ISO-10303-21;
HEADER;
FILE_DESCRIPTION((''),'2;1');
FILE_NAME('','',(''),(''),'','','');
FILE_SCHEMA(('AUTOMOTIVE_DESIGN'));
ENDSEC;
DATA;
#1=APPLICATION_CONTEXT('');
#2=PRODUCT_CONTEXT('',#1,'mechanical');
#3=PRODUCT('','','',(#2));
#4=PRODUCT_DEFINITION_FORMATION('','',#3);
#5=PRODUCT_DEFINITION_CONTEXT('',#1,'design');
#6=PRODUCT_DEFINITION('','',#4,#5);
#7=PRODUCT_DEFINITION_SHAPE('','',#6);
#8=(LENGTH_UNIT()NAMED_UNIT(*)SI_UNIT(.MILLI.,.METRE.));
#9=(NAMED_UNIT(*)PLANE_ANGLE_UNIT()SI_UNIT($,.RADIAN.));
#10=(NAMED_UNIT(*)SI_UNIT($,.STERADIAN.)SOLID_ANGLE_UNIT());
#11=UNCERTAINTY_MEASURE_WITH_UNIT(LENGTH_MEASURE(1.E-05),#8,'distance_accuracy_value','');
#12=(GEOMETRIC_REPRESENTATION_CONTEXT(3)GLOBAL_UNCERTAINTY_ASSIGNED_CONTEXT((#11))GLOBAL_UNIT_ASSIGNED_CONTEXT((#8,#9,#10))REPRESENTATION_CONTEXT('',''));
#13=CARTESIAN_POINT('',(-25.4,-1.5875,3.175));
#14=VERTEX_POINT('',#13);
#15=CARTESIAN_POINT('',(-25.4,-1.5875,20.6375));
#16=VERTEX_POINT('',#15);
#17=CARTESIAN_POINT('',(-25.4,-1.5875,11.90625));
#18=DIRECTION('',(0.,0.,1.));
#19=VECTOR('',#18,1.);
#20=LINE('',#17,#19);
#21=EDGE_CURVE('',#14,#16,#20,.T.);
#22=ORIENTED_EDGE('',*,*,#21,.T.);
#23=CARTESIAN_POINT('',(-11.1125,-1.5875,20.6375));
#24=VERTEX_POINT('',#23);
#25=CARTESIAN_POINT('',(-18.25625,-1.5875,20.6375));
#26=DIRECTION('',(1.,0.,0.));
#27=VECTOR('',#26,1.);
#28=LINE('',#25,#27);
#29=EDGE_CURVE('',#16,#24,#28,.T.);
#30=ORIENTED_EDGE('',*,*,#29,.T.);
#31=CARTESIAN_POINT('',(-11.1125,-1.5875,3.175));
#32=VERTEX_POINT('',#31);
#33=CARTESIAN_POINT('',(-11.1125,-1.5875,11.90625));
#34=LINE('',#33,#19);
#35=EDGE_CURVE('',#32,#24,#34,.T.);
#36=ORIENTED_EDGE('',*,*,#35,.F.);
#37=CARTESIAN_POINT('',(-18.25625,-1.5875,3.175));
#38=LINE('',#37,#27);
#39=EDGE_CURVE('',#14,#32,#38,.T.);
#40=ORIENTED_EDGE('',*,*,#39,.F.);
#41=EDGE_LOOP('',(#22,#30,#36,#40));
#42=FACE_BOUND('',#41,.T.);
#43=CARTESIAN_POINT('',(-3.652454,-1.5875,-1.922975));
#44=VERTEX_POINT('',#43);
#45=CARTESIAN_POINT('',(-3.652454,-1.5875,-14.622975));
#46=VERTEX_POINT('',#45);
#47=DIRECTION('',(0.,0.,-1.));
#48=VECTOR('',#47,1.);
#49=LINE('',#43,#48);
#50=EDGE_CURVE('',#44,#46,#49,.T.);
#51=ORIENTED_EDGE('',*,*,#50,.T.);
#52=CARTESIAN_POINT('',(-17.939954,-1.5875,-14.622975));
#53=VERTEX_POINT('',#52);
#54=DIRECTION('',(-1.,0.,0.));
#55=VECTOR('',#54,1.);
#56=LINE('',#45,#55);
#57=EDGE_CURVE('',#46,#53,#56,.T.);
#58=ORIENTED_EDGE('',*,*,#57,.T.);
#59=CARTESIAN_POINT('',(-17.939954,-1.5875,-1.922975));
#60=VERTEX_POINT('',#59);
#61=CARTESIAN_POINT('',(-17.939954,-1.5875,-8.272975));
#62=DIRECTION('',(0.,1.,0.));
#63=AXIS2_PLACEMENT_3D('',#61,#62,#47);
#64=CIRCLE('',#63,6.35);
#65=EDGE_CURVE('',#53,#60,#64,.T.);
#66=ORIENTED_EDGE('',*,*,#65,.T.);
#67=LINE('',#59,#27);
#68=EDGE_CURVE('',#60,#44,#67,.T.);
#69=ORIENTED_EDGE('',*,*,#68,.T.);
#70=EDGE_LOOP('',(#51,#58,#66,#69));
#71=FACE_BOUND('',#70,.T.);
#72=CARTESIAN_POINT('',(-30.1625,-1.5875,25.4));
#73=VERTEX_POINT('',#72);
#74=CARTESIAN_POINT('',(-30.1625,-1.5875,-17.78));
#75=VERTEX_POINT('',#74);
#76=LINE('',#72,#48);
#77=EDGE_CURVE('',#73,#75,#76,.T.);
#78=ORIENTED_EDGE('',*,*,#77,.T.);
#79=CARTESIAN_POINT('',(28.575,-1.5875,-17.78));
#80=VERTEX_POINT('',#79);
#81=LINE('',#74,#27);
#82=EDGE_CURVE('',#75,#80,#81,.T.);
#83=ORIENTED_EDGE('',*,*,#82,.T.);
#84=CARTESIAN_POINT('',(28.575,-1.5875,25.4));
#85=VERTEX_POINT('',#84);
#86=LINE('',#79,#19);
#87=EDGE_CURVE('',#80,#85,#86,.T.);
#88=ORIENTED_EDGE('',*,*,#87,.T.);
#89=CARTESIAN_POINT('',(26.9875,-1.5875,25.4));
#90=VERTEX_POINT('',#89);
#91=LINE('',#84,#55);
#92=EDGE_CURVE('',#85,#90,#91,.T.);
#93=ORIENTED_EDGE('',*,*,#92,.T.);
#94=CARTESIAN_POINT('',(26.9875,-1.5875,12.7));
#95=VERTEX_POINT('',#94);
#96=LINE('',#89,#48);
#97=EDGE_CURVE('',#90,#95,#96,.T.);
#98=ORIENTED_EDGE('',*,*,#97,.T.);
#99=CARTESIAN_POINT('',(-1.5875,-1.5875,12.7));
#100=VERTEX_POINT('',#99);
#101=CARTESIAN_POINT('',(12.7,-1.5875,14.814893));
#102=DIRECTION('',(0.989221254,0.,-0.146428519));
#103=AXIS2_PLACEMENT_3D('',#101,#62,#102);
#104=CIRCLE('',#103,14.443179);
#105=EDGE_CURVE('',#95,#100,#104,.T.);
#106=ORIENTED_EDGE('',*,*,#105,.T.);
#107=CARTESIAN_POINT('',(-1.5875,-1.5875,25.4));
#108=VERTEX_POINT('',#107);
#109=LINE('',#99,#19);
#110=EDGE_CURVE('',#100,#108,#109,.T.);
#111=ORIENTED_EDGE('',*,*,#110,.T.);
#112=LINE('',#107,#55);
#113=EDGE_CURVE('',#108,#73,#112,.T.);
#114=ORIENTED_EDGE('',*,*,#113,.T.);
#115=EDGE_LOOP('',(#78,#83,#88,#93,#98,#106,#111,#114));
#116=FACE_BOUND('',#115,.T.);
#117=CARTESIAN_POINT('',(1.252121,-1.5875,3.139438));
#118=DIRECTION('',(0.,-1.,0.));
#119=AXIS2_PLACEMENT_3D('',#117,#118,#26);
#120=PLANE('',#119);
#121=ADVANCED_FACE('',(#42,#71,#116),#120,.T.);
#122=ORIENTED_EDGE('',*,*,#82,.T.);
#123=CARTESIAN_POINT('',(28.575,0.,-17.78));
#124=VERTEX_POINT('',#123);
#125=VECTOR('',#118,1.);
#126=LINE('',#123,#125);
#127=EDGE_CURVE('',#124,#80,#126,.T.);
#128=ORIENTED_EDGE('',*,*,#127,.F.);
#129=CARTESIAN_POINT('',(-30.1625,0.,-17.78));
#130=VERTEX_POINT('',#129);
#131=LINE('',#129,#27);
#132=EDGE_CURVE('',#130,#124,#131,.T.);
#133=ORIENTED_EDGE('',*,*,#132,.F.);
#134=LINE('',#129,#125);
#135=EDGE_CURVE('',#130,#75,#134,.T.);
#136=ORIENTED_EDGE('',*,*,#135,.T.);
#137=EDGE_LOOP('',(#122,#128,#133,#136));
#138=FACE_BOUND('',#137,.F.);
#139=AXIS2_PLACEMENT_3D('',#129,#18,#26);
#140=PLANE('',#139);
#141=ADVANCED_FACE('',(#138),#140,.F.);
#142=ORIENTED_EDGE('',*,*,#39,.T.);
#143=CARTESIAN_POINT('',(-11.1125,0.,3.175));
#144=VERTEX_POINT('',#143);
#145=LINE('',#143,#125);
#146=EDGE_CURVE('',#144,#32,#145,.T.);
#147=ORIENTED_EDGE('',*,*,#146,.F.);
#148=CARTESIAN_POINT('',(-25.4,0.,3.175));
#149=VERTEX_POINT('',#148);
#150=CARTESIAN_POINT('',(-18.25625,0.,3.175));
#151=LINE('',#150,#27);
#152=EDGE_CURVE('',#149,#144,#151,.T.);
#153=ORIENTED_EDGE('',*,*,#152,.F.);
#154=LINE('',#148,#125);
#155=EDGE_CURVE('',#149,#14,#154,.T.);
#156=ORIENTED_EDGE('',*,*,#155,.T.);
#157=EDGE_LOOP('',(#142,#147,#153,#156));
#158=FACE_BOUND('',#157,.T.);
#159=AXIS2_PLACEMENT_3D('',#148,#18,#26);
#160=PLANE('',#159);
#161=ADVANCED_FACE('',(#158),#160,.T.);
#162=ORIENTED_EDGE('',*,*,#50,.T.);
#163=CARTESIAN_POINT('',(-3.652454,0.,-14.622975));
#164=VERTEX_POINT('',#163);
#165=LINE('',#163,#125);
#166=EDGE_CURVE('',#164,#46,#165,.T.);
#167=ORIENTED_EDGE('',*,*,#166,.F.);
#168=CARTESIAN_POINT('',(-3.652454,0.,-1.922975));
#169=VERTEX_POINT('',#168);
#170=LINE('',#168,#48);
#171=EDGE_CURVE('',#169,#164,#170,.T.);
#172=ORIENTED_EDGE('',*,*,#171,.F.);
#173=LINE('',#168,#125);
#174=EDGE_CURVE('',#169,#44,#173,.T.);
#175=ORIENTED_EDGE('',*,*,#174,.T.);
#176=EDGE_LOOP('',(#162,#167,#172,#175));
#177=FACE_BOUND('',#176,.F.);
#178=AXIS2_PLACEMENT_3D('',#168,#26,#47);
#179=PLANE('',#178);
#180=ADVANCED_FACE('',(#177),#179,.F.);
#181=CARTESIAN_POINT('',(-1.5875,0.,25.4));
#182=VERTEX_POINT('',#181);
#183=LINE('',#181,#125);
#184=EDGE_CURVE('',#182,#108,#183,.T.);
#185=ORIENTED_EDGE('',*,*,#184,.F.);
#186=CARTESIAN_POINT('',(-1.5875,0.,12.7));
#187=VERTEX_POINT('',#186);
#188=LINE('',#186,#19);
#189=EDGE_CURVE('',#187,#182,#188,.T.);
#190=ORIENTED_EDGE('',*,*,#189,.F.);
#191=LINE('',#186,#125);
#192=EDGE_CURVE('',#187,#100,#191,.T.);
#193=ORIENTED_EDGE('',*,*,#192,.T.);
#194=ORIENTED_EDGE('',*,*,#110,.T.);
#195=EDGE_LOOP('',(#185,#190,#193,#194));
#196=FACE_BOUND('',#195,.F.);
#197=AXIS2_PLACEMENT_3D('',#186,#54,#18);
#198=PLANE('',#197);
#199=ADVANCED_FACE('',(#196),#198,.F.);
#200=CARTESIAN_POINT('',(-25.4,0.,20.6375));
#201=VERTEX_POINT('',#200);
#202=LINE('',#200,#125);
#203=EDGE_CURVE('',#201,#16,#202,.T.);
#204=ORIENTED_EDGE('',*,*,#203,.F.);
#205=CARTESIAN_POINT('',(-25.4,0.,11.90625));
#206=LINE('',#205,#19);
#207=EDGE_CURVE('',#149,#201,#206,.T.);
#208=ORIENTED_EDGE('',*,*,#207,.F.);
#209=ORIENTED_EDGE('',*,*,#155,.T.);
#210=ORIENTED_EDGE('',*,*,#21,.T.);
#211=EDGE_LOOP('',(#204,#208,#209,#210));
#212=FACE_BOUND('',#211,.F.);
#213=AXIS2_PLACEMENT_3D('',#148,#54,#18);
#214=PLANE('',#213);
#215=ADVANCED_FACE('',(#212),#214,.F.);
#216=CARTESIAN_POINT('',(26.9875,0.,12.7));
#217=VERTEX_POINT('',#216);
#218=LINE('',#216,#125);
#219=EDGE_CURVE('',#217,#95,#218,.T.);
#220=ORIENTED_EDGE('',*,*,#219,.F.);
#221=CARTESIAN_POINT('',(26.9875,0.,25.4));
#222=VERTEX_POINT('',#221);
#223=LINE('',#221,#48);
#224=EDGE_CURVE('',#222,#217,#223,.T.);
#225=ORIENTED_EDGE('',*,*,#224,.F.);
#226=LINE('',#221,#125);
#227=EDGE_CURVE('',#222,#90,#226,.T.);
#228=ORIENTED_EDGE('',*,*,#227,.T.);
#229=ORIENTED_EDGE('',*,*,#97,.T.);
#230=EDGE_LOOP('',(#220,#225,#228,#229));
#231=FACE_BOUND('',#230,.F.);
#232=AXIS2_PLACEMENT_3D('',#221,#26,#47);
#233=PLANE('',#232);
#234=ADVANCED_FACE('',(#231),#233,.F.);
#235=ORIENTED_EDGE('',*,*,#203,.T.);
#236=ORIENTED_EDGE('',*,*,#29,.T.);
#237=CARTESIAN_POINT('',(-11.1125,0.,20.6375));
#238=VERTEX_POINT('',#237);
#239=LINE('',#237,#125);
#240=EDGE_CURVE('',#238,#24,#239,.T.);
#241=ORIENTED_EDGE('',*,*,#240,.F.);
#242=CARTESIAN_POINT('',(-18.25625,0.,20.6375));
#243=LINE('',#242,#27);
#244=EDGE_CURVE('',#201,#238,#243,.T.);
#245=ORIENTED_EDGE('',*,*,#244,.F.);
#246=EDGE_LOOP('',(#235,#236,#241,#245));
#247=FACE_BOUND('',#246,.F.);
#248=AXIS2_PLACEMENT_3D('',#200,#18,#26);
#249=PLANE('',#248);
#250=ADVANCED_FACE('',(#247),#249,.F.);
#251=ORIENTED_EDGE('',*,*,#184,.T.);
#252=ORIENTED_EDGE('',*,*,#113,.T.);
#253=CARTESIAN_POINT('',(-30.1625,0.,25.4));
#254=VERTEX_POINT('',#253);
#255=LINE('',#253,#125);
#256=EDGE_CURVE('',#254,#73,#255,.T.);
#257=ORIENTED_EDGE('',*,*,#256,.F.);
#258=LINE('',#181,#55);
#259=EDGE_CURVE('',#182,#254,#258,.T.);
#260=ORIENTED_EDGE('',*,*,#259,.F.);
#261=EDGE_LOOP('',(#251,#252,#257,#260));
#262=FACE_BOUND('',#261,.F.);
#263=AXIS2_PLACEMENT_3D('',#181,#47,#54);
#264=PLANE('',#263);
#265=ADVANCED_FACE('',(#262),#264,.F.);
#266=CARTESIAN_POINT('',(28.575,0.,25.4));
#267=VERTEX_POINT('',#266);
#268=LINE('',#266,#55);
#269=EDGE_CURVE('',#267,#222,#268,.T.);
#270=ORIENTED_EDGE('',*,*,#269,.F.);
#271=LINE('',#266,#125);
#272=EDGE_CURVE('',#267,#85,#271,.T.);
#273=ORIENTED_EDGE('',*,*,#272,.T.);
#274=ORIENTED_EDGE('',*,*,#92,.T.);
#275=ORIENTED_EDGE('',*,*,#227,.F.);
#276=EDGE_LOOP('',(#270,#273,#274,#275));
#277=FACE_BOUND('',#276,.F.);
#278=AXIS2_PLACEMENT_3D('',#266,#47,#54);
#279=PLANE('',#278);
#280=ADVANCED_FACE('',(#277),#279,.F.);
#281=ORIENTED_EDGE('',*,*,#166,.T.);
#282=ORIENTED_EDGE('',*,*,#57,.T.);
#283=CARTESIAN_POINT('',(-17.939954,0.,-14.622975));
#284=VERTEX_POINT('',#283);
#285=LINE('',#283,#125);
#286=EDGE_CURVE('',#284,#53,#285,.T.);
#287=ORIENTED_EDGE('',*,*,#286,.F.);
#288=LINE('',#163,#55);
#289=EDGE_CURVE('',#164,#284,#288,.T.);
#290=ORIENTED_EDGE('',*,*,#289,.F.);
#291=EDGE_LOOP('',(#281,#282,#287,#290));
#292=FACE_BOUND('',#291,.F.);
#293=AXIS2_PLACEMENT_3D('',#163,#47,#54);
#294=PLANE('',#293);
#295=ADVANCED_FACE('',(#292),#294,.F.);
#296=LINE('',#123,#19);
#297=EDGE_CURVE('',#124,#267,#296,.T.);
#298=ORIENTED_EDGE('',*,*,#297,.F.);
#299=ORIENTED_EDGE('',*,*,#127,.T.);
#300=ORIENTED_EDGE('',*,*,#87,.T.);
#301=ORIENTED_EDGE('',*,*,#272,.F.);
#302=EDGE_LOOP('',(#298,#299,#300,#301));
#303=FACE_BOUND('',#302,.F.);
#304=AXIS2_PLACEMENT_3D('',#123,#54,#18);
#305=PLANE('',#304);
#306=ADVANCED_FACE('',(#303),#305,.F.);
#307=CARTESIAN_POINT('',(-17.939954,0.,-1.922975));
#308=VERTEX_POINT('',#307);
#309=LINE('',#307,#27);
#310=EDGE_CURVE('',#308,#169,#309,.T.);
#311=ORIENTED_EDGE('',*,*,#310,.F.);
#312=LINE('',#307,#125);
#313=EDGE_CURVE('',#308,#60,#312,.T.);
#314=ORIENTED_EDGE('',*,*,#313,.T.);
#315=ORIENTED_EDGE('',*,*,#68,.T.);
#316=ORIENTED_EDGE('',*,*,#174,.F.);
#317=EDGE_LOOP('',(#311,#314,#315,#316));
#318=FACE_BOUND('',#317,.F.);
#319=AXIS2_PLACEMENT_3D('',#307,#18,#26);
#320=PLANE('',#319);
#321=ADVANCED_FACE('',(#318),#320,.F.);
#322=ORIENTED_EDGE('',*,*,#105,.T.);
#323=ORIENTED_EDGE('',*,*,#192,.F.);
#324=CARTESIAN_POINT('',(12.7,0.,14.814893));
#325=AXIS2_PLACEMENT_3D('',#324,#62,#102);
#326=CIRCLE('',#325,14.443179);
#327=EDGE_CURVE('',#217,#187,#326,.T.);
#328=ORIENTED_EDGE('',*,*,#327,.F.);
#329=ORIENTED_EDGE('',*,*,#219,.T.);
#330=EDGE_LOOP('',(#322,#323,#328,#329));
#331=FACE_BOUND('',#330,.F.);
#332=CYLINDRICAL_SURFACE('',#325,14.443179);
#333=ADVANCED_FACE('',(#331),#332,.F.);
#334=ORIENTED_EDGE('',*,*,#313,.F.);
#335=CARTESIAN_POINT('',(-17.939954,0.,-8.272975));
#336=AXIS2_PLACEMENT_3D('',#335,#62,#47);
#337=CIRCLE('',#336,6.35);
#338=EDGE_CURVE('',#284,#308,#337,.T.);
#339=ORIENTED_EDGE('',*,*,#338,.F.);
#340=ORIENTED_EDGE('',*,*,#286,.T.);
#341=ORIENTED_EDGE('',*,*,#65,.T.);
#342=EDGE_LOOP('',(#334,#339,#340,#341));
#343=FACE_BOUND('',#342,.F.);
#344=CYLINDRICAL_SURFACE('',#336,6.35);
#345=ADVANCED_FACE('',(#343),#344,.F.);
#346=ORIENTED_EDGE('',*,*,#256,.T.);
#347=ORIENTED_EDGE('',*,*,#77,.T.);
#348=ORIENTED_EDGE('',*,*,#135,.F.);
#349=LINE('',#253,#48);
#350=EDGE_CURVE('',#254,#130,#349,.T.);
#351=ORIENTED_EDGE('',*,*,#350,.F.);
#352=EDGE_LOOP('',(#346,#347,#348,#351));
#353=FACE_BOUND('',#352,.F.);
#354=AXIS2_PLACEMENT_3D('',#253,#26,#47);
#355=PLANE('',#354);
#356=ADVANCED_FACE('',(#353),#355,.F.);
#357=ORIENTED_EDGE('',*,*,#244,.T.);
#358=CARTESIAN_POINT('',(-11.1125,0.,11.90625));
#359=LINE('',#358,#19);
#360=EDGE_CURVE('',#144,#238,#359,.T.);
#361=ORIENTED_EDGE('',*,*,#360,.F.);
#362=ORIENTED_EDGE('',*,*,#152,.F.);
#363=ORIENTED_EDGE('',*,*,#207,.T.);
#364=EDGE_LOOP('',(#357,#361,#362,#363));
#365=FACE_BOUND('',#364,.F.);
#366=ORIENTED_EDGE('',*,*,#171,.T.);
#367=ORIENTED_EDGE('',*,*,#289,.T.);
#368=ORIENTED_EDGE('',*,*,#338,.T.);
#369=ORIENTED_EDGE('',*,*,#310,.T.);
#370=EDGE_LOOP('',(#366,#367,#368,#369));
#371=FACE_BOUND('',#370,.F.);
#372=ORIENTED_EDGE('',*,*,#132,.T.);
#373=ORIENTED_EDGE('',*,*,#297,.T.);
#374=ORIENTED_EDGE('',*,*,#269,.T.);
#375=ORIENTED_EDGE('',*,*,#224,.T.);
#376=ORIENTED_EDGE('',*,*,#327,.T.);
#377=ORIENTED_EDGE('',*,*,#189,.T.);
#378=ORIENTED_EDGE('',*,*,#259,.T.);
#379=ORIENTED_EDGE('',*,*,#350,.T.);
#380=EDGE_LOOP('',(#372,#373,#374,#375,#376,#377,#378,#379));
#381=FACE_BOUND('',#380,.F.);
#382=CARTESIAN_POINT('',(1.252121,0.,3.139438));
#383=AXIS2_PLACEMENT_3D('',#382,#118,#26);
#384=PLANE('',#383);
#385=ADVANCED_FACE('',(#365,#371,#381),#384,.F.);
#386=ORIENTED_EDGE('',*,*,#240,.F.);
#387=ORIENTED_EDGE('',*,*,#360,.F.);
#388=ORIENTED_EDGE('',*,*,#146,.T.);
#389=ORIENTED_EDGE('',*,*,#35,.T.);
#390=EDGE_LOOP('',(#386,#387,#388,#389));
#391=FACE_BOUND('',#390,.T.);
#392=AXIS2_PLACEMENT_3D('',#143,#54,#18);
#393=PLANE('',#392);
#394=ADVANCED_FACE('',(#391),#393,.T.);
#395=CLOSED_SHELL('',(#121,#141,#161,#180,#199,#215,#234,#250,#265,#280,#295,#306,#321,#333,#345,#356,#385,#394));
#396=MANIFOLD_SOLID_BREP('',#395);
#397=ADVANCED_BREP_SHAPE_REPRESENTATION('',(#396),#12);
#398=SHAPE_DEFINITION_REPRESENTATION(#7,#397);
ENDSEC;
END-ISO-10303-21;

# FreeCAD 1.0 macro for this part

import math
import FreeCAD as App
import Part
import Sketcher

V = App.Vector
Q = App.Units.Quantity


def add_polygon(sketch, points):
    """Adds a closed chain of lines whose ends are joined by coincident constraints."""
    first, n = sketch.GeometryCount, len(points)
    for a, b in zip(points, points[1:] + points[:1]):
        sketch.addGeometry(Part.LineSegment(App.Vector(*a, 0), App.Vector(*b, 0)), False)
    for i in range(n):
        sketch.addConstraint(Sketcher.Constraint("Coincident", first + i, 2, first + (i + 1) % n, 1))

doc = App.newDocument("Part")
body = doc.addObject("PartDesign::Body", "Body")

# Sketch on XZ plane
sketch1 = body.newObject("Sketcher::SketchObject", "Sketch")
sketch1.AttachmentSupport = (doc.getObject("XZ_Plane"), [""])
sketch1.MapMode = "FlatFace"
sketch1.addGeometry(Part.LineSegment(V(-30.2, 25.4, 0), V(-30.2, -17.8, 0)), False)  # 0
sketch1.addGeometry(Part.LineSegment(V(-30.2, -17.8, 0), V(28.6, -17.8, 0)), False)  # 1
sketch1.addGeometry(Part.LineSegment(V(28.6, -17.8, 0), V(28.6, 25.4, 0)), False)  # 2
sketch1.addGeometry(Part.LineSegment(V(28.6, 25.4, 0), V(27, 25.4, 0)), False)  # 3
sketch1.addGeometry(Part.LineSegment(V(27, 25.4, 0), V(27, 12.7, 0)), False)  # 4
sketch1.addGeometry(Part.ArcOfCircle(Part.Circle(V(12.7, 14.8, 0), V(0, 0, 1), 14.4), math.radians(-172), math.radians(-8)), False)  # 5
sketch1.addGeometry(Part.LineSegment(V(-1.6, 12.7, 0), V(-1.6, 25.4, 0)), False)  # 6
sketch1.addGeometry(Part.LineSegment(V(-1.6, 25.4, 0), V(-30.2, 25.4, 0)), False)  # 7
sketch1.addGeometry(Part.LineSegment(V(-3.7, -14.6, 0), V(-17.9, -14.6, 0)), False)  # 8
sketch1.addGeometry(Part.ArcOfCircle(Part.Circle(V(-17.9, -8.3, 0), V(0, 0, 1), 6.3), math.radians(90), math.radians(270)), False)  # 9
sketch1.addGeometry(Part.LineSegment(V(-17.9, -1.9, 0), V(-3.7, -1.9, 0)), False)  # 10
sketch1.addGeometry(Part.LineSegment(V(-3.7, -1.9, 0), V(-3.7, -14.6, 0)), False)  # 11
add_polygon(sketch1, [(-11.1, 3.2), (-25.4, 3.2), (-25.4, 20.6), (-11.1, 20.6)])  # lines 12-15
sketch1.addConstraint([
    Sketcher.Constraint("Coincident", 0, 2, 1, 1),
    Sketcher.Constraint("Coincident", 1, 2, 2, 1),
    Sketcher.Constraint("Coincident", 2, 2, 3, 1),
    Sketcher.Constraint("Coincident", 3, 2, 4, 1),
    Sketcher.Constraint("Coincident", 4, 2, 5, 2),
    Sketcher.Constraint("Coincident", 5, 1, 6, 1),
    Sketcher.Constraint("Coincident", 6, 2, 7, 1),
    Sketcher.Constraint("Coincident", 7, 2, 0, 1),
    Sketcher.Constraint("Tangent", 8, 2, 9, 2),
    Sketcher.Constraint("Tangent", 9, 1, 10, 1),
    Sketcher.Constraint("Coincident", 10, 2, 11, 1),
    Sketcher.Constraint("Coincident", 11, 2, 8, 1),
    Sketcher.Constraint("Vertical", 0),
    Sketcher.Constraint("Horizontal", 1),
    Sketcher.Constraint("Vertical", 2),
    Sketcher.Constraint("Horizontal", 3),
    Sketcher.Constraint("Vertical", 4),
    Sketcher.Constraint("Vertical", 6),
    Sketcher.Constraint("Horizontal", 7),
    Sketcher.Constraint("Horizontal", 8),
    Sketcher.Constraint("Horizontal", 10),
    Sketcher.Constraint("Vertical", 11),
    Sketcher.Constraint("Horizontal", 12),
    Sketcher.Constraint("Vertical", 13),
    Sketcher.Constraint("Horizontal", 14),
    Sketcher.Constraint("Vertical", 15),
    Sketcher.Constraint("Horizontal", 4, 2, 5, 1),
    Sketcher.Constraint("Horizontal", 3, 2, 6, 2),
    Sketcher.Constraint("Equal", 10, 12),
    Sketcher.Constraint("Equal", 6, 11),
    Sketcher.Constraint("Radius", 9, Q("0.25 in")),
    Sketcher.Constraint("DistanceY", 0, 2, 0, 1, Q("1.7 in")),
    Sketcher.Constraint("DistanceY", -1, 1, 2, 2, Q("1 in")),
    Sketcher.Constraint("DistanceX", 12, 2, -1, 1, Q("1 in")),
    Sketcher.Constraint("DistanceX", -1, 1, 5, 3, Q("0.5 in")),
    Sketcher.Constraint("DistanceX", 1, 1, 1, 2, Q("2.3125 in")),
    Sketcher.Constraint("DistanceX", 3, 2, 3, 1, Q("0.0625 in")),
    Sketcher.Constraint("DistanceX", 7, 2, 7, 1, Q("1.125 in")),
    Sketcher.Constraint("DistanceX", 8, 2, 8, 1, Q("0.5625 in")),
    Sketcher.Constraint("DistanceY", 13, 1, 13, 2, Q("0.6875 in")),
    Sketcher.Constraint("DistanceY", -1, 1, 12, 2, Q("0.125 in")),
    Sketcher.Constraint("Radius", 5, Q("14.443179 mm")),
    Sketcher.Constraint("DistanceY", 9, 3, 5, 3, Q("23.087868 mm")),
    Sketcher.Constraint("DistanceX", 9, 3, -1, 1, Q("17.939954 mm")),
])
pad1 = body.newObject("PartDesign::Pad", "Pad")
pad1.Profile = sketch1
pad1.Length = Q("0.0625 in")

doc.recompute()
